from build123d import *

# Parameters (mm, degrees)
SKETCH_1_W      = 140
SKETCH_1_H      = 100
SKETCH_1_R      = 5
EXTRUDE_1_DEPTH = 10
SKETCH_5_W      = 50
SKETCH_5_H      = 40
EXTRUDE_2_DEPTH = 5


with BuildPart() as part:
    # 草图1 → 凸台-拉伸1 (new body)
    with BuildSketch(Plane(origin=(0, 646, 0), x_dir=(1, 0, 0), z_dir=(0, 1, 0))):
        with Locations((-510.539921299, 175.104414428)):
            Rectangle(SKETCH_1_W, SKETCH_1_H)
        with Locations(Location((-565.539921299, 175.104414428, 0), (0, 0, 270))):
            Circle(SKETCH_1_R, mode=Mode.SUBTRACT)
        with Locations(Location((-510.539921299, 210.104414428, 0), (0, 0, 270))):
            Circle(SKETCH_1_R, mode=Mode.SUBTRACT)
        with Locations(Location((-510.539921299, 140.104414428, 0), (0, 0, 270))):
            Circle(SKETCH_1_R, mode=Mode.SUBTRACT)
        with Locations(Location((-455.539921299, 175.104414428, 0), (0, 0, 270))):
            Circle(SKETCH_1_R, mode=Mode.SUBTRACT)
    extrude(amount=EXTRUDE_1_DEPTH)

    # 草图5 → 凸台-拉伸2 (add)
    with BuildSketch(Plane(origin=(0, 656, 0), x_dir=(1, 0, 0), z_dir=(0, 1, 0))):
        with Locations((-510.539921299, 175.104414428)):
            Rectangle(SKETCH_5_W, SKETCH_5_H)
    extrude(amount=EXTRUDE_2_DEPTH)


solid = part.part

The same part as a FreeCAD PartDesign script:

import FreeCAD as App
import Part
import Sketcher
from FreeCAD import Vector

doc = App.newDocument("Part")
body = doc.addObject("PartDesign::Body", "Body")

# Sketch on XZ plane
sketch1 = doc.addObject("Sketcher::SketchObject", "Sketch")
body.addObject(sketch1)
sketch1.AttachmentSupport = (doc.XZ_Plane, [""])
sketch1.MapMode = "FlatFace"
sketch1.AttachmentOffset = App.Placement(Vector(0, 0, -646), App.Rotation())
sketch1.addGeometry([
    Part.LineSegment(Vector(-581, -225, 0), Vector(-581, -125, 0)),  # 0
    Part.LineSegment(Vector(-581, -125, 0), Vector(-441, -125, 0)),  # 1
    Part.LineSegment(Vector(-441, -125, 0), Vector(-441, -225, 0)),  # 2
    Part.LineSegment(Vector(-441, -225, 0), Vector(-581, -225, 0)),  # 3
    Part.Circle(Vector(-511, -140, 0), Vector(0, 0, 1), 5),  # 4
    Part.Circle(Vector(-566, -175, 0), Vector(0, 0, 1), 5),  # 5
    Part.Circle(Vector(-511, -210, 0), Vector(0, 0, 1), 5),  # 6
    Part.Circle(Vector(-456, -175, 0), Vector(0, 0, 1), 5),  # 7
], False)
sketch1.addConstraint([
    Sketcher.Constraint("Coincident", 0, 2, 1, 1),
    Sketcher.Constraint("Coincident", 1, 2, 2, 1),
    Sketcher.Constraint("Coincident", 2, 2, 3, 1),
    Sketcher.Constraint("Coincident", 3, 2, 0, 1),
    Sketcher.Constraint("Vertical", 0),
    Sketcher.Constraint("Horizontal", 1),
    Sketcher.Constraint("Vertical", 2),
    Sketcher.Constraint("Horizontal", 3),
    Sketcher.Constraint("Equal", 4, 5),
    Sketcher.Constraint("Equal", 5, 6),
    Sketcher.Constraint("Equal", 6, 7),
    Sketcher.Constraint("Horizontal", 5, 3, 7, 3),
    Sketcher.Constraint("Vertical", 4, 3, 6, 3),
    Sketcher.Constraint("Diameter", 4, 10.0),
    Sketcher.Constraint("DistanceX", 1, 1, 1, 2, 140.0),
    Sketcher.Constraint("DistanceY", 0, 1, 0, 2, 100.0),
    Sketcher.Constraint("DistanceX", 5, 3, 4, 3, 55.0),
    Sketcher.Constraint("DistanceY", 5, 3, 4, 3, 35.0),
    Sketcher.Constraint("DistanceY", 6, 3, 5, 3, 35.0),
    Sketcher.Constraint("DistanceX", 4, 3, 7, 3, 55.0),
    Sketcher.Constraint("DistanceX", 0, 2, 5, 3, 15.0),
    Sketcher.Constraint("DistanceY", 5, 3, 0, 2, 50.0),
    Sketcher.Constraint("DistanceX", 4, 3, -1, 1, 510.539921),
    Sketcher.Constraint("DistanceY", 4, 3, -1, 1, 140.104414),
])
pad1 = doc.addObject("PartDesign::Pad", "Pad")
body.addObject(pad1)
pad1.Profile = sketch1
pad1.Length = 10
pad1.Reversed = True

# Sketch on XZ plane
sketch2 = doc.addObject("Sketcher::SketchObject", "Sketch001")
body.addObject(sketch2)
sketch2.AttachmentSupport = (doc.XZ_Plane, [""])
sketch2.MapMode = "FlatFace"
sketch2.AttachmentOffset = App.Placement(Vector(0, 0, -656), App.Rotation())
sketch2.addGeometry([
    Part.LineSegment(Vector(-536, -195, 0), Vector(-536, -155, 0)),
    Part.LineSegment(Vector(-536, -155, 0), Vector(-486, -155, 0)),
    Part.LineSegment(Vector(-486, -155, 0), Vector(-486, -195, 0)),
    Part.LineSegment(Vector(-486, -195, 0), Vector(-536, -195, 0)),
], False)
sketch2.addConstraint([
    Sketcher.Constraint("Coincident", 0, 2, 1, 1),
    Sketcher.Constraint("Coincident", 1, 2, 2, 1),
    Sketcher.Constraint("Coincident", 2, 2, 3, 1),
    Sketcher.Constraint("Coincident", 3, 2, 0, 1),
    Sketcher.Constraint("Vertical", 0),
    Sketcher.Constraint("Horizontal", 1),
    Sketcher.Constraint("Vertical", 2),
    Sketcher.Constraint("Horizontal", 3),
    Sketcher.Constraint("DistanceX", 1, 1, 1, 2, 50.0),
    Sketcher.Constraint("DistanceY", 0, 1, 0, 2, 40.0),
    Sketcher.Constraint("DistanceX", 0, 2, -1, 1, 535.539921),
    Sketcher.Constraint("DistanceY", 0, 2, -1, 1, 155.104414),
])
pad2 = doc.addObject("PartDesign::Pad", "Pad001")
body.addObject(pad2)
pad2.Profile = sketch2
pad2.Length = 5
pad2.Reversed = True

doc.recompute()
